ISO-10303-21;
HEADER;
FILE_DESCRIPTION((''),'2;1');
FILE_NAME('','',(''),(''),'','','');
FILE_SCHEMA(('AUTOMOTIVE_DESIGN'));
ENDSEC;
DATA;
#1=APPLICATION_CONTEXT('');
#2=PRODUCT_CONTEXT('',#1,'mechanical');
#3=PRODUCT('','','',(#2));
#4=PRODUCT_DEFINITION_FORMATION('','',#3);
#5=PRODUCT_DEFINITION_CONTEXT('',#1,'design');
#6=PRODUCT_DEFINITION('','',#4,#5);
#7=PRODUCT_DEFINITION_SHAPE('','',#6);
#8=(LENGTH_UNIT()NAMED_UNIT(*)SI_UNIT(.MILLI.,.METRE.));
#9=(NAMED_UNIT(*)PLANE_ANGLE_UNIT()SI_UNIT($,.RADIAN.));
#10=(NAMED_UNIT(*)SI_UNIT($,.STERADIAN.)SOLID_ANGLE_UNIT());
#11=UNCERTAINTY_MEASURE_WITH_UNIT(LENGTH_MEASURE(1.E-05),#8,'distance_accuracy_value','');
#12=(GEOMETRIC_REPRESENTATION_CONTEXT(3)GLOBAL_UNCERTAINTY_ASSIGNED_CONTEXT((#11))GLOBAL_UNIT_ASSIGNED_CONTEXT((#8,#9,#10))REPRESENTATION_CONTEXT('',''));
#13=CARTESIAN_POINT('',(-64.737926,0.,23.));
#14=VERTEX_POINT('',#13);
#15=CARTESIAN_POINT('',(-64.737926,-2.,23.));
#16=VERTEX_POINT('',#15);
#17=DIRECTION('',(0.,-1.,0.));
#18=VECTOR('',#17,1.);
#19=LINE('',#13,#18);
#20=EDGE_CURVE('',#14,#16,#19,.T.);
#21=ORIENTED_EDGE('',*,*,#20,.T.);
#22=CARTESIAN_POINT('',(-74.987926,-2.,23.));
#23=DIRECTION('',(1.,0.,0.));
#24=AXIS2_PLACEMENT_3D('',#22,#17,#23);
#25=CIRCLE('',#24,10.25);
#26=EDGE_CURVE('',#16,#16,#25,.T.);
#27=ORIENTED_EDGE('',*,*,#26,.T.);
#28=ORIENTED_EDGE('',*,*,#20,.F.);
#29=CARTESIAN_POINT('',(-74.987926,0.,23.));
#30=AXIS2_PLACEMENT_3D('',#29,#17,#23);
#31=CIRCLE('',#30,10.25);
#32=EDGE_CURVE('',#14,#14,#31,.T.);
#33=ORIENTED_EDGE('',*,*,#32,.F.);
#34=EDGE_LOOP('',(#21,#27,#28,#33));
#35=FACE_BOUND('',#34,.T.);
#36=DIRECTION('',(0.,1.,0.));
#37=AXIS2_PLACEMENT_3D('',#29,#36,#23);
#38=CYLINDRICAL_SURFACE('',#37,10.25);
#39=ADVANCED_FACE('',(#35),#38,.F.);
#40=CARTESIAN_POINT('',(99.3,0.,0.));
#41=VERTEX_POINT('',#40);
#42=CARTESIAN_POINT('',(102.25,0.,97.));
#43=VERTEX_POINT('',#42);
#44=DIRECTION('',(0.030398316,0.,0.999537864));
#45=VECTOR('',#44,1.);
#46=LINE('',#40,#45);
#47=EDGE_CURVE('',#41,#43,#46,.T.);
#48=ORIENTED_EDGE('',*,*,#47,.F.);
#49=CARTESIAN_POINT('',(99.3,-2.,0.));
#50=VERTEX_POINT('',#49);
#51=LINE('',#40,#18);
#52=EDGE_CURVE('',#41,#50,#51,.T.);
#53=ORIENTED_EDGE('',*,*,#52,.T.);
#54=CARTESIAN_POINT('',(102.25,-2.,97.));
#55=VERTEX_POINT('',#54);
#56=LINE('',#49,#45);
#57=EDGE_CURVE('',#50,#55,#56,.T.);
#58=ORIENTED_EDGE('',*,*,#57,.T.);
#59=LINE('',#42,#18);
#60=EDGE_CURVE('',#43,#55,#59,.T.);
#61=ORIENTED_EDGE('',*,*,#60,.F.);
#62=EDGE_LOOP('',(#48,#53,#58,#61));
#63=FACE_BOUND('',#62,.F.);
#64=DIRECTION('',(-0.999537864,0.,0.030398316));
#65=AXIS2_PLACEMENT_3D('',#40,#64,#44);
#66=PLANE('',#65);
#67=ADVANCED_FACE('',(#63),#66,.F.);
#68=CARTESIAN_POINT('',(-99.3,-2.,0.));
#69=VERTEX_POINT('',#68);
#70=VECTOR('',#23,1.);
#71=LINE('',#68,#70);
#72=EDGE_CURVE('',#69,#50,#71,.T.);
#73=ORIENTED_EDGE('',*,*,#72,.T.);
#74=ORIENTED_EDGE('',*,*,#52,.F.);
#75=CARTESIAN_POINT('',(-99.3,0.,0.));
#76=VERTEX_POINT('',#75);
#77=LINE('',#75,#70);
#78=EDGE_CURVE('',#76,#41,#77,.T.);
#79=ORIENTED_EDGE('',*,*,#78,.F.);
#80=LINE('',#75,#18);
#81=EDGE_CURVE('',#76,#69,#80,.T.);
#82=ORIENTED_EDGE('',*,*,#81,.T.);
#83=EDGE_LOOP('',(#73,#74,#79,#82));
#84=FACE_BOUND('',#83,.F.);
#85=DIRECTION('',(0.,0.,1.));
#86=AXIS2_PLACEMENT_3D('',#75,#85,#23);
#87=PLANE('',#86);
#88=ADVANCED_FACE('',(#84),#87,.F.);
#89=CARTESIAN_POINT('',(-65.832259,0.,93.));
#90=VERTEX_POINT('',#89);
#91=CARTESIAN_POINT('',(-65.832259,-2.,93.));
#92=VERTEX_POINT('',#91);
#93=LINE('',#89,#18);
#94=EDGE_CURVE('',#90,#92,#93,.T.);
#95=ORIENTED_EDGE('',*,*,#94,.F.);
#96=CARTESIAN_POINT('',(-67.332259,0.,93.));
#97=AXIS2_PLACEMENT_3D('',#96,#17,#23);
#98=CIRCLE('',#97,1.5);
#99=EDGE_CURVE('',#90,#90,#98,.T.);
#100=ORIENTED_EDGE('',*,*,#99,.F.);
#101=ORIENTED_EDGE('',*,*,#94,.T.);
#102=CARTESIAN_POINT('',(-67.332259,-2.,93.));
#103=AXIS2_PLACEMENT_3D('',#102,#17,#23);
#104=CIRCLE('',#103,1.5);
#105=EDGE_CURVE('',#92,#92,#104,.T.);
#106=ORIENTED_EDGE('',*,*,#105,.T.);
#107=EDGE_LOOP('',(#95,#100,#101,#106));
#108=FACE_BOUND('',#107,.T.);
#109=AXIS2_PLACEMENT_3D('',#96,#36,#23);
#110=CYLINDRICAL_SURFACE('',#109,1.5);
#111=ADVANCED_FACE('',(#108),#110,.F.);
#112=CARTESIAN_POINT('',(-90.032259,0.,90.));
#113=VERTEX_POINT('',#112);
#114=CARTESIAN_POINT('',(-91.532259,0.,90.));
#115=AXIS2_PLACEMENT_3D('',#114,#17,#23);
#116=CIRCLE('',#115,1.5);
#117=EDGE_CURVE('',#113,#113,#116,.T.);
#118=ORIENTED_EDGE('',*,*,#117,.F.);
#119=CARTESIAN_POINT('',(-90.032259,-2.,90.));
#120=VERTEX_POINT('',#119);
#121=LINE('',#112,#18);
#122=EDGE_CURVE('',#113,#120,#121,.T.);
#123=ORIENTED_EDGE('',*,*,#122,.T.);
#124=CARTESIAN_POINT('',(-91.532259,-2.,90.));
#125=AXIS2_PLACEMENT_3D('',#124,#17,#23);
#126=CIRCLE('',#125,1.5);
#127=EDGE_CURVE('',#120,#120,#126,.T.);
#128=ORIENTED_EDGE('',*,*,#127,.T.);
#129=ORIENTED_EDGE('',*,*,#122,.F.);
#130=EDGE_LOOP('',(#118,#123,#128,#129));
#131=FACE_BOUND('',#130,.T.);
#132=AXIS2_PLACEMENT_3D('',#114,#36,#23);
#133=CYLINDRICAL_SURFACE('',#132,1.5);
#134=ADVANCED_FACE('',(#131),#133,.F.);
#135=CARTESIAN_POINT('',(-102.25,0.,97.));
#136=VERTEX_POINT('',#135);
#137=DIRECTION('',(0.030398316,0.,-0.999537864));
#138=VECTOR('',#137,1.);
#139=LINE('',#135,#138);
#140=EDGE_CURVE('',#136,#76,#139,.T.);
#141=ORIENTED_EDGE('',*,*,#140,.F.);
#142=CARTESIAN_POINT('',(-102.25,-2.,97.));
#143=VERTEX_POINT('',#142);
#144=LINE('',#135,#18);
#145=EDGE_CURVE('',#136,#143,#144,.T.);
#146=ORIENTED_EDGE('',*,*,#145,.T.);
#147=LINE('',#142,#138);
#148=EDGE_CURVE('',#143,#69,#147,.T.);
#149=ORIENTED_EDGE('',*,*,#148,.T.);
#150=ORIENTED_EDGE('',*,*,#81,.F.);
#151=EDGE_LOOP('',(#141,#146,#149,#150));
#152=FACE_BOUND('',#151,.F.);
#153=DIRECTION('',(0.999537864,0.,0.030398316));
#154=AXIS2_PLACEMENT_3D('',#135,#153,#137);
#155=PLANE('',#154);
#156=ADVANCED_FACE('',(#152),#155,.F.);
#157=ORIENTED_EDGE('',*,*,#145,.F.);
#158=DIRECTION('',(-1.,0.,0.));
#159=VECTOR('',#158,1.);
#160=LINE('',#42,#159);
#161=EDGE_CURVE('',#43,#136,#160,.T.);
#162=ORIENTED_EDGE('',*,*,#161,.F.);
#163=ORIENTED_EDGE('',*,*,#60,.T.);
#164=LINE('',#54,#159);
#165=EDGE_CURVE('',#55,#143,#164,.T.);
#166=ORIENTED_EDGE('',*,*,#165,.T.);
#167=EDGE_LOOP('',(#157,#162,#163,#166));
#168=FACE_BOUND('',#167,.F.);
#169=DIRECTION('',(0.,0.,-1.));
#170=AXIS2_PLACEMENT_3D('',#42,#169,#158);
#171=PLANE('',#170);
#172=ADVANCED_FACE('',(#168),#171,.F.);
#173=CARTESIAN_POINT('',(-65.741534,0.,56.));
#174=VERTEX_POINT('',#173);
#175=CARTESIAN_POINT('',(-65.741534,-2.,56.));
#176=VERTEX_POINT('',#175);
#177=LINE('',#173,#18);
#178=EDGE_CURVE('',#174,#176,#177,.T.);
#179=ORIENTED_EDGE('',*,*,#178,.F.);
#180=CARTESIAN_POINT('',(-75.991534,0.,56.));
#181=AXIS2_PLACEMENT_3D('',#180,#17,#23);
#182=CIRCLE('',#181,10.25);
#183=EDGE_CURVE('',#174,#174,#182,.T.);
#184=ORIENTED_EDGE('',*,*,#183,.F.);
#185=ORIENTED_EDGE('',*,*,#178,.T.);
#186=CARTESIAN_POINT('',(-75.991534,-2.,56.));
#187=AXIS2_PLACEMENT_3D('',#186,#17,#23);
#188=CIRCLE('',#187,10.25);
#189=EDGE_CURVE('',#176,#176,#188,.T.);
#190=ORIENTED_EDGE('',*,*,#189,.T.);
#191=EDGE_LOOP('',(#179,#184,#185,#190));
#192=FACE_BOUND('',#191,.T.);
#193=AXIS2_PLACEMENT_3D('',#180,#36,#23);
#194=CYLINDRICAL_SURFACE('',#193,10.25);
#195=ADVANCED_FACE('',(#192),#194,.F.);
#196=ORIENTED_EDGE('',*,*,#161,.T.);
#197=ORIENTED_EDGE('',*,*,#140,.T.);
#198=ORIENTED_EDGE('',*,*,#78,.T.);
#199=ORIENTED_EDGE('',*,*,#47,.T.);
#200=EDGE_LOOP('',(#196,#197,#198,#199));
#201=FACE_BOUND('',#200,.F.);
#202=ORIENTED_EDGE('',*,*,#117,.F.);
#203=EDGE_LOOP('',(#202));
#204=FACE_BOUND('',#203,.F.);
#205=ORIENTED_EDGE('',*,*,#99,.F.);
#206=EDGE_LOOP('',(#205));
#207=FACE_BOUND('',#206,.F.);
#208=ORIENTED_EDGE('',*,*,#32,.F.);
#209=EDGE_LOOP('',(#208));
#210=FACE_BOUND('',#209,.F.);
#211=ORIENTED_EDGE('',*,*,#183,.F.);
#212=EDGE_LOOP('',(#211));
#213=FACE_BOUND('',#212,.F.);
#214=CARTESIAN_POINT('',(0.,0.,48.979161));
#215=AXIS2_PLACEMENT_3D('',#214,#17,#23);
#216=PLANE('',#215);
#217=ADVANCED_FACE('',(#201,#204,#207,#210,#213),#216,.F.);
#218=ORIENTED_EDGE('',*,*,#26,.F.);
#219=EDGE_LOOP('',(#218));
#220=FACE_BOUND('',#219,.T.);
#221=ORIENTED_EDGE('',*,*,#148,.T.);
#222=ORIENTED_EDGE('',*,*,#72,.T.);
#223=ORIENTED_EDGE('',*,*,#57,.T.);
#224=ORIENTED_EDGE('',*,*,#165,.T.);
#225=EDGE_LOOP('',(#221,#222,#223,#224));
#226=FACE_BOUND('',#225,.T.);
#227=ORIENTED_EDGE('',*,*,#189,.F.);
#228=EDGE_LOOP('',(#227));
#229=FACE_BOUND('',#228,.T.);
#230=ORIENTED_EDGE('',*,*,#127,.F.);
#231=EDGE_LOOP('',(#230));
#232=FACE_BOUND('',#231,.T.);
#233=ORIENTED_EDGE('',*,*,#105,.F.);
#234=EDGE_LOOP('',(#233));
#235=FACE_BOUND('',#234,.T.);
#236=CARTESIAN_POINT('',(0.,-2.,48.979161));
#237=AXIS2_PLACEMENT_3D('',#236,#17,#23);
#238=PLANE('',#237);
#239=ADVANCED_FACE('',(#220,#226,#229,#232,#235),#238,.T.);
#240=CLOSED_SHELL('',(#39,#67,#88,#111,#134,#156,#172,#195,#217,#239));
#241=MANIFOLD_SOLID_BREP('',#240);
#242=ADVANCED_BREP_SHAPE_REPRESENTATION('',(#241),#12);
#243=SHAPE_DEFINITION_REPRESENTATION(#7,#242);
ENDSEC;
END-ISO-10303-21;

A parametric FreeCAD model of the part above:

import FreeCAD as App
import Part
import Sketcher
from FreeCAD import Vector

doc = App.newDocument("Part")
params = doc.addObject("Spreadsheet::Sheet", "Params")
for row, (alias, value) in enumerate([
    ("sketch1_diameter", "3 mm"),
    ("sketch1_diameter2", "20.5 mm"),
    ("sketch1_width", "198.6 mm"),
    ("sketch1_width2", "204.5 mm"),
    ("pad1_length", "2 mm"),
], start=1):
    params.set(f"A{row}", alias)
    params.set(f"B{row}", "=" + value)
    params.setAlias(f"B{row}", alias)

body = doc.addObject("PartDesign::Body", "Body")

sketch1 = body.newObject("Sketcher::SketchObject", "Sketch")
sketch1.AttachmentSupport = (doc.getObject("XZ_Plane"), [""])
sketch1.MapMode = "FlatFace"
sketch1.addGeometry(Part.LineSegment(Vector(-99.3, 0, 0), Vector(99.3, 0, 0)), False)
sketch1.addGeometry(Part.LineSegment(Vector(99.3, 0, 0), Vector(102.2, 97, 0)), False)
sketch1.addGeometry(Part.LineSegment(Vector(102.2, 97, 0), Vector(-102.2, 97, 0)), False)
sketch1.addGeometry(Part.LineSegment(Vector(-102.2, 97, 0), Vector(-99.3, 0, 0)), False)
sketch1.addGeometry(Part.Circle(Vector(-75, 23, 0), Vector(0, 0, 1), 10.2), False)
sketch1.addGeometry(Part.Circle(Vector(-91.5, 90, 0), Vector(0, 0, 1), 1.5), False)
sketch1.addGeometry(Part.Circle(Vector(-76, 56, 0), Vector(0, 0, 1), 10.2), False)
sketch1.addGeometry(Part.Circle(Vector(-67.3, 93, 0), Vector(0, 0, 1), 1.5), False)
sketch1.addConstraint(Sketcher.Constraint("Coincident", 0, 2, 1, 1))
sketch1.addConstraint(Sketcher.Constraint("Coincident", 1, 2, 2, 1))
sketch1.addConstraint(Sketcher.Constraint("Coincident", 2, 2, 3, 1))
sketch1.addConstraint(Sketcher.Constraint("Coincident", 3, 2, 0, 1))
sketch1.addConstraint(Sketcher.Constraint("Horizontal", 0))
sketch1.addConstraint(Sketcher.Constraint("Horizontal", 2))
sketch1.addConstraint(Sketcher.Constraint("Equal", 4, 6))
sketch1.addConstraint(Sketcher.Constraint("Equal", 5, 7))
sketch1.addConstraint(Sketcher.Constraint("Symmetric", 0, 2, 3, 2, -1, 1))
sketch1.addConstraint(Sketcher.Constraint("Equal", 1, 3))
sketch1.addConstraint(Sketcher.Constraint("Diameter", 5, 3.0))
sketch1.addConstraint(Sketcher.Constraint("Diameter", 4, 20.5))
sketch1.addConstraint(Sketcher.Constraint("DistanceX", 0, 1, 0, 2, 198.6))
sketch1.addConstraint(Sketcher.Constraint("DistanceX", 2, 2, 2, 1, 204.5))
sketch1.addConstraint(Sketcher.Constraint("DistanceY", -1, 1, 4, 3, 23.0))
sketch1.addConstraint(Sketcher.Constraint("DistanceY", -1, 1, 5, 3, 90.0))
sketch1.addConstraint(Sketcher.Constraint("DistanceY", -1, 1, 6, 3, 56.0))
sketch1.addConstraint(Sketcher.Constraint("DistanceY", -1, 1, 7, 3, 93.0))
sketch1.addConstraint(Sketcher.Constraint("DistanceY", -1, 1, 1, 2, 97.0))
sketch1.addConstraint(Sketcher.Constraint("DistanceX", 5, 3, 7, 3, 24.2))
sketch1.addConstraint(Sketcher.Constraint("DistanceX", 5, 3, -1, 1, 91.532259))
sketch1.addConstraint(Sketcher.Constraint("DistanceX", 4, 3, -1, 1, 74.987926))
sketch1.addConstraint(Sketcher.Constraint("DistanceX", 6, 3, -1, 1, 75.991534))
sketch1.setExpression("Constraints[10]", "Params.sketch1_diameter")
sketch1.setExpression("Constraints[11]", "Params.sketch1_diameter2")
sketch1.setExpression("Constraints[12]", "Params.sketch1_width")
sketch1.setExpression("Constraints[13]", "Params.sketch1_width2")
pad1 = body.newObject("PartDesign::Pad", "Pad")
pad1.Profile = sketch1
pad1.setExpression("Length", "Params.pad1_length")

doc.recompute()
